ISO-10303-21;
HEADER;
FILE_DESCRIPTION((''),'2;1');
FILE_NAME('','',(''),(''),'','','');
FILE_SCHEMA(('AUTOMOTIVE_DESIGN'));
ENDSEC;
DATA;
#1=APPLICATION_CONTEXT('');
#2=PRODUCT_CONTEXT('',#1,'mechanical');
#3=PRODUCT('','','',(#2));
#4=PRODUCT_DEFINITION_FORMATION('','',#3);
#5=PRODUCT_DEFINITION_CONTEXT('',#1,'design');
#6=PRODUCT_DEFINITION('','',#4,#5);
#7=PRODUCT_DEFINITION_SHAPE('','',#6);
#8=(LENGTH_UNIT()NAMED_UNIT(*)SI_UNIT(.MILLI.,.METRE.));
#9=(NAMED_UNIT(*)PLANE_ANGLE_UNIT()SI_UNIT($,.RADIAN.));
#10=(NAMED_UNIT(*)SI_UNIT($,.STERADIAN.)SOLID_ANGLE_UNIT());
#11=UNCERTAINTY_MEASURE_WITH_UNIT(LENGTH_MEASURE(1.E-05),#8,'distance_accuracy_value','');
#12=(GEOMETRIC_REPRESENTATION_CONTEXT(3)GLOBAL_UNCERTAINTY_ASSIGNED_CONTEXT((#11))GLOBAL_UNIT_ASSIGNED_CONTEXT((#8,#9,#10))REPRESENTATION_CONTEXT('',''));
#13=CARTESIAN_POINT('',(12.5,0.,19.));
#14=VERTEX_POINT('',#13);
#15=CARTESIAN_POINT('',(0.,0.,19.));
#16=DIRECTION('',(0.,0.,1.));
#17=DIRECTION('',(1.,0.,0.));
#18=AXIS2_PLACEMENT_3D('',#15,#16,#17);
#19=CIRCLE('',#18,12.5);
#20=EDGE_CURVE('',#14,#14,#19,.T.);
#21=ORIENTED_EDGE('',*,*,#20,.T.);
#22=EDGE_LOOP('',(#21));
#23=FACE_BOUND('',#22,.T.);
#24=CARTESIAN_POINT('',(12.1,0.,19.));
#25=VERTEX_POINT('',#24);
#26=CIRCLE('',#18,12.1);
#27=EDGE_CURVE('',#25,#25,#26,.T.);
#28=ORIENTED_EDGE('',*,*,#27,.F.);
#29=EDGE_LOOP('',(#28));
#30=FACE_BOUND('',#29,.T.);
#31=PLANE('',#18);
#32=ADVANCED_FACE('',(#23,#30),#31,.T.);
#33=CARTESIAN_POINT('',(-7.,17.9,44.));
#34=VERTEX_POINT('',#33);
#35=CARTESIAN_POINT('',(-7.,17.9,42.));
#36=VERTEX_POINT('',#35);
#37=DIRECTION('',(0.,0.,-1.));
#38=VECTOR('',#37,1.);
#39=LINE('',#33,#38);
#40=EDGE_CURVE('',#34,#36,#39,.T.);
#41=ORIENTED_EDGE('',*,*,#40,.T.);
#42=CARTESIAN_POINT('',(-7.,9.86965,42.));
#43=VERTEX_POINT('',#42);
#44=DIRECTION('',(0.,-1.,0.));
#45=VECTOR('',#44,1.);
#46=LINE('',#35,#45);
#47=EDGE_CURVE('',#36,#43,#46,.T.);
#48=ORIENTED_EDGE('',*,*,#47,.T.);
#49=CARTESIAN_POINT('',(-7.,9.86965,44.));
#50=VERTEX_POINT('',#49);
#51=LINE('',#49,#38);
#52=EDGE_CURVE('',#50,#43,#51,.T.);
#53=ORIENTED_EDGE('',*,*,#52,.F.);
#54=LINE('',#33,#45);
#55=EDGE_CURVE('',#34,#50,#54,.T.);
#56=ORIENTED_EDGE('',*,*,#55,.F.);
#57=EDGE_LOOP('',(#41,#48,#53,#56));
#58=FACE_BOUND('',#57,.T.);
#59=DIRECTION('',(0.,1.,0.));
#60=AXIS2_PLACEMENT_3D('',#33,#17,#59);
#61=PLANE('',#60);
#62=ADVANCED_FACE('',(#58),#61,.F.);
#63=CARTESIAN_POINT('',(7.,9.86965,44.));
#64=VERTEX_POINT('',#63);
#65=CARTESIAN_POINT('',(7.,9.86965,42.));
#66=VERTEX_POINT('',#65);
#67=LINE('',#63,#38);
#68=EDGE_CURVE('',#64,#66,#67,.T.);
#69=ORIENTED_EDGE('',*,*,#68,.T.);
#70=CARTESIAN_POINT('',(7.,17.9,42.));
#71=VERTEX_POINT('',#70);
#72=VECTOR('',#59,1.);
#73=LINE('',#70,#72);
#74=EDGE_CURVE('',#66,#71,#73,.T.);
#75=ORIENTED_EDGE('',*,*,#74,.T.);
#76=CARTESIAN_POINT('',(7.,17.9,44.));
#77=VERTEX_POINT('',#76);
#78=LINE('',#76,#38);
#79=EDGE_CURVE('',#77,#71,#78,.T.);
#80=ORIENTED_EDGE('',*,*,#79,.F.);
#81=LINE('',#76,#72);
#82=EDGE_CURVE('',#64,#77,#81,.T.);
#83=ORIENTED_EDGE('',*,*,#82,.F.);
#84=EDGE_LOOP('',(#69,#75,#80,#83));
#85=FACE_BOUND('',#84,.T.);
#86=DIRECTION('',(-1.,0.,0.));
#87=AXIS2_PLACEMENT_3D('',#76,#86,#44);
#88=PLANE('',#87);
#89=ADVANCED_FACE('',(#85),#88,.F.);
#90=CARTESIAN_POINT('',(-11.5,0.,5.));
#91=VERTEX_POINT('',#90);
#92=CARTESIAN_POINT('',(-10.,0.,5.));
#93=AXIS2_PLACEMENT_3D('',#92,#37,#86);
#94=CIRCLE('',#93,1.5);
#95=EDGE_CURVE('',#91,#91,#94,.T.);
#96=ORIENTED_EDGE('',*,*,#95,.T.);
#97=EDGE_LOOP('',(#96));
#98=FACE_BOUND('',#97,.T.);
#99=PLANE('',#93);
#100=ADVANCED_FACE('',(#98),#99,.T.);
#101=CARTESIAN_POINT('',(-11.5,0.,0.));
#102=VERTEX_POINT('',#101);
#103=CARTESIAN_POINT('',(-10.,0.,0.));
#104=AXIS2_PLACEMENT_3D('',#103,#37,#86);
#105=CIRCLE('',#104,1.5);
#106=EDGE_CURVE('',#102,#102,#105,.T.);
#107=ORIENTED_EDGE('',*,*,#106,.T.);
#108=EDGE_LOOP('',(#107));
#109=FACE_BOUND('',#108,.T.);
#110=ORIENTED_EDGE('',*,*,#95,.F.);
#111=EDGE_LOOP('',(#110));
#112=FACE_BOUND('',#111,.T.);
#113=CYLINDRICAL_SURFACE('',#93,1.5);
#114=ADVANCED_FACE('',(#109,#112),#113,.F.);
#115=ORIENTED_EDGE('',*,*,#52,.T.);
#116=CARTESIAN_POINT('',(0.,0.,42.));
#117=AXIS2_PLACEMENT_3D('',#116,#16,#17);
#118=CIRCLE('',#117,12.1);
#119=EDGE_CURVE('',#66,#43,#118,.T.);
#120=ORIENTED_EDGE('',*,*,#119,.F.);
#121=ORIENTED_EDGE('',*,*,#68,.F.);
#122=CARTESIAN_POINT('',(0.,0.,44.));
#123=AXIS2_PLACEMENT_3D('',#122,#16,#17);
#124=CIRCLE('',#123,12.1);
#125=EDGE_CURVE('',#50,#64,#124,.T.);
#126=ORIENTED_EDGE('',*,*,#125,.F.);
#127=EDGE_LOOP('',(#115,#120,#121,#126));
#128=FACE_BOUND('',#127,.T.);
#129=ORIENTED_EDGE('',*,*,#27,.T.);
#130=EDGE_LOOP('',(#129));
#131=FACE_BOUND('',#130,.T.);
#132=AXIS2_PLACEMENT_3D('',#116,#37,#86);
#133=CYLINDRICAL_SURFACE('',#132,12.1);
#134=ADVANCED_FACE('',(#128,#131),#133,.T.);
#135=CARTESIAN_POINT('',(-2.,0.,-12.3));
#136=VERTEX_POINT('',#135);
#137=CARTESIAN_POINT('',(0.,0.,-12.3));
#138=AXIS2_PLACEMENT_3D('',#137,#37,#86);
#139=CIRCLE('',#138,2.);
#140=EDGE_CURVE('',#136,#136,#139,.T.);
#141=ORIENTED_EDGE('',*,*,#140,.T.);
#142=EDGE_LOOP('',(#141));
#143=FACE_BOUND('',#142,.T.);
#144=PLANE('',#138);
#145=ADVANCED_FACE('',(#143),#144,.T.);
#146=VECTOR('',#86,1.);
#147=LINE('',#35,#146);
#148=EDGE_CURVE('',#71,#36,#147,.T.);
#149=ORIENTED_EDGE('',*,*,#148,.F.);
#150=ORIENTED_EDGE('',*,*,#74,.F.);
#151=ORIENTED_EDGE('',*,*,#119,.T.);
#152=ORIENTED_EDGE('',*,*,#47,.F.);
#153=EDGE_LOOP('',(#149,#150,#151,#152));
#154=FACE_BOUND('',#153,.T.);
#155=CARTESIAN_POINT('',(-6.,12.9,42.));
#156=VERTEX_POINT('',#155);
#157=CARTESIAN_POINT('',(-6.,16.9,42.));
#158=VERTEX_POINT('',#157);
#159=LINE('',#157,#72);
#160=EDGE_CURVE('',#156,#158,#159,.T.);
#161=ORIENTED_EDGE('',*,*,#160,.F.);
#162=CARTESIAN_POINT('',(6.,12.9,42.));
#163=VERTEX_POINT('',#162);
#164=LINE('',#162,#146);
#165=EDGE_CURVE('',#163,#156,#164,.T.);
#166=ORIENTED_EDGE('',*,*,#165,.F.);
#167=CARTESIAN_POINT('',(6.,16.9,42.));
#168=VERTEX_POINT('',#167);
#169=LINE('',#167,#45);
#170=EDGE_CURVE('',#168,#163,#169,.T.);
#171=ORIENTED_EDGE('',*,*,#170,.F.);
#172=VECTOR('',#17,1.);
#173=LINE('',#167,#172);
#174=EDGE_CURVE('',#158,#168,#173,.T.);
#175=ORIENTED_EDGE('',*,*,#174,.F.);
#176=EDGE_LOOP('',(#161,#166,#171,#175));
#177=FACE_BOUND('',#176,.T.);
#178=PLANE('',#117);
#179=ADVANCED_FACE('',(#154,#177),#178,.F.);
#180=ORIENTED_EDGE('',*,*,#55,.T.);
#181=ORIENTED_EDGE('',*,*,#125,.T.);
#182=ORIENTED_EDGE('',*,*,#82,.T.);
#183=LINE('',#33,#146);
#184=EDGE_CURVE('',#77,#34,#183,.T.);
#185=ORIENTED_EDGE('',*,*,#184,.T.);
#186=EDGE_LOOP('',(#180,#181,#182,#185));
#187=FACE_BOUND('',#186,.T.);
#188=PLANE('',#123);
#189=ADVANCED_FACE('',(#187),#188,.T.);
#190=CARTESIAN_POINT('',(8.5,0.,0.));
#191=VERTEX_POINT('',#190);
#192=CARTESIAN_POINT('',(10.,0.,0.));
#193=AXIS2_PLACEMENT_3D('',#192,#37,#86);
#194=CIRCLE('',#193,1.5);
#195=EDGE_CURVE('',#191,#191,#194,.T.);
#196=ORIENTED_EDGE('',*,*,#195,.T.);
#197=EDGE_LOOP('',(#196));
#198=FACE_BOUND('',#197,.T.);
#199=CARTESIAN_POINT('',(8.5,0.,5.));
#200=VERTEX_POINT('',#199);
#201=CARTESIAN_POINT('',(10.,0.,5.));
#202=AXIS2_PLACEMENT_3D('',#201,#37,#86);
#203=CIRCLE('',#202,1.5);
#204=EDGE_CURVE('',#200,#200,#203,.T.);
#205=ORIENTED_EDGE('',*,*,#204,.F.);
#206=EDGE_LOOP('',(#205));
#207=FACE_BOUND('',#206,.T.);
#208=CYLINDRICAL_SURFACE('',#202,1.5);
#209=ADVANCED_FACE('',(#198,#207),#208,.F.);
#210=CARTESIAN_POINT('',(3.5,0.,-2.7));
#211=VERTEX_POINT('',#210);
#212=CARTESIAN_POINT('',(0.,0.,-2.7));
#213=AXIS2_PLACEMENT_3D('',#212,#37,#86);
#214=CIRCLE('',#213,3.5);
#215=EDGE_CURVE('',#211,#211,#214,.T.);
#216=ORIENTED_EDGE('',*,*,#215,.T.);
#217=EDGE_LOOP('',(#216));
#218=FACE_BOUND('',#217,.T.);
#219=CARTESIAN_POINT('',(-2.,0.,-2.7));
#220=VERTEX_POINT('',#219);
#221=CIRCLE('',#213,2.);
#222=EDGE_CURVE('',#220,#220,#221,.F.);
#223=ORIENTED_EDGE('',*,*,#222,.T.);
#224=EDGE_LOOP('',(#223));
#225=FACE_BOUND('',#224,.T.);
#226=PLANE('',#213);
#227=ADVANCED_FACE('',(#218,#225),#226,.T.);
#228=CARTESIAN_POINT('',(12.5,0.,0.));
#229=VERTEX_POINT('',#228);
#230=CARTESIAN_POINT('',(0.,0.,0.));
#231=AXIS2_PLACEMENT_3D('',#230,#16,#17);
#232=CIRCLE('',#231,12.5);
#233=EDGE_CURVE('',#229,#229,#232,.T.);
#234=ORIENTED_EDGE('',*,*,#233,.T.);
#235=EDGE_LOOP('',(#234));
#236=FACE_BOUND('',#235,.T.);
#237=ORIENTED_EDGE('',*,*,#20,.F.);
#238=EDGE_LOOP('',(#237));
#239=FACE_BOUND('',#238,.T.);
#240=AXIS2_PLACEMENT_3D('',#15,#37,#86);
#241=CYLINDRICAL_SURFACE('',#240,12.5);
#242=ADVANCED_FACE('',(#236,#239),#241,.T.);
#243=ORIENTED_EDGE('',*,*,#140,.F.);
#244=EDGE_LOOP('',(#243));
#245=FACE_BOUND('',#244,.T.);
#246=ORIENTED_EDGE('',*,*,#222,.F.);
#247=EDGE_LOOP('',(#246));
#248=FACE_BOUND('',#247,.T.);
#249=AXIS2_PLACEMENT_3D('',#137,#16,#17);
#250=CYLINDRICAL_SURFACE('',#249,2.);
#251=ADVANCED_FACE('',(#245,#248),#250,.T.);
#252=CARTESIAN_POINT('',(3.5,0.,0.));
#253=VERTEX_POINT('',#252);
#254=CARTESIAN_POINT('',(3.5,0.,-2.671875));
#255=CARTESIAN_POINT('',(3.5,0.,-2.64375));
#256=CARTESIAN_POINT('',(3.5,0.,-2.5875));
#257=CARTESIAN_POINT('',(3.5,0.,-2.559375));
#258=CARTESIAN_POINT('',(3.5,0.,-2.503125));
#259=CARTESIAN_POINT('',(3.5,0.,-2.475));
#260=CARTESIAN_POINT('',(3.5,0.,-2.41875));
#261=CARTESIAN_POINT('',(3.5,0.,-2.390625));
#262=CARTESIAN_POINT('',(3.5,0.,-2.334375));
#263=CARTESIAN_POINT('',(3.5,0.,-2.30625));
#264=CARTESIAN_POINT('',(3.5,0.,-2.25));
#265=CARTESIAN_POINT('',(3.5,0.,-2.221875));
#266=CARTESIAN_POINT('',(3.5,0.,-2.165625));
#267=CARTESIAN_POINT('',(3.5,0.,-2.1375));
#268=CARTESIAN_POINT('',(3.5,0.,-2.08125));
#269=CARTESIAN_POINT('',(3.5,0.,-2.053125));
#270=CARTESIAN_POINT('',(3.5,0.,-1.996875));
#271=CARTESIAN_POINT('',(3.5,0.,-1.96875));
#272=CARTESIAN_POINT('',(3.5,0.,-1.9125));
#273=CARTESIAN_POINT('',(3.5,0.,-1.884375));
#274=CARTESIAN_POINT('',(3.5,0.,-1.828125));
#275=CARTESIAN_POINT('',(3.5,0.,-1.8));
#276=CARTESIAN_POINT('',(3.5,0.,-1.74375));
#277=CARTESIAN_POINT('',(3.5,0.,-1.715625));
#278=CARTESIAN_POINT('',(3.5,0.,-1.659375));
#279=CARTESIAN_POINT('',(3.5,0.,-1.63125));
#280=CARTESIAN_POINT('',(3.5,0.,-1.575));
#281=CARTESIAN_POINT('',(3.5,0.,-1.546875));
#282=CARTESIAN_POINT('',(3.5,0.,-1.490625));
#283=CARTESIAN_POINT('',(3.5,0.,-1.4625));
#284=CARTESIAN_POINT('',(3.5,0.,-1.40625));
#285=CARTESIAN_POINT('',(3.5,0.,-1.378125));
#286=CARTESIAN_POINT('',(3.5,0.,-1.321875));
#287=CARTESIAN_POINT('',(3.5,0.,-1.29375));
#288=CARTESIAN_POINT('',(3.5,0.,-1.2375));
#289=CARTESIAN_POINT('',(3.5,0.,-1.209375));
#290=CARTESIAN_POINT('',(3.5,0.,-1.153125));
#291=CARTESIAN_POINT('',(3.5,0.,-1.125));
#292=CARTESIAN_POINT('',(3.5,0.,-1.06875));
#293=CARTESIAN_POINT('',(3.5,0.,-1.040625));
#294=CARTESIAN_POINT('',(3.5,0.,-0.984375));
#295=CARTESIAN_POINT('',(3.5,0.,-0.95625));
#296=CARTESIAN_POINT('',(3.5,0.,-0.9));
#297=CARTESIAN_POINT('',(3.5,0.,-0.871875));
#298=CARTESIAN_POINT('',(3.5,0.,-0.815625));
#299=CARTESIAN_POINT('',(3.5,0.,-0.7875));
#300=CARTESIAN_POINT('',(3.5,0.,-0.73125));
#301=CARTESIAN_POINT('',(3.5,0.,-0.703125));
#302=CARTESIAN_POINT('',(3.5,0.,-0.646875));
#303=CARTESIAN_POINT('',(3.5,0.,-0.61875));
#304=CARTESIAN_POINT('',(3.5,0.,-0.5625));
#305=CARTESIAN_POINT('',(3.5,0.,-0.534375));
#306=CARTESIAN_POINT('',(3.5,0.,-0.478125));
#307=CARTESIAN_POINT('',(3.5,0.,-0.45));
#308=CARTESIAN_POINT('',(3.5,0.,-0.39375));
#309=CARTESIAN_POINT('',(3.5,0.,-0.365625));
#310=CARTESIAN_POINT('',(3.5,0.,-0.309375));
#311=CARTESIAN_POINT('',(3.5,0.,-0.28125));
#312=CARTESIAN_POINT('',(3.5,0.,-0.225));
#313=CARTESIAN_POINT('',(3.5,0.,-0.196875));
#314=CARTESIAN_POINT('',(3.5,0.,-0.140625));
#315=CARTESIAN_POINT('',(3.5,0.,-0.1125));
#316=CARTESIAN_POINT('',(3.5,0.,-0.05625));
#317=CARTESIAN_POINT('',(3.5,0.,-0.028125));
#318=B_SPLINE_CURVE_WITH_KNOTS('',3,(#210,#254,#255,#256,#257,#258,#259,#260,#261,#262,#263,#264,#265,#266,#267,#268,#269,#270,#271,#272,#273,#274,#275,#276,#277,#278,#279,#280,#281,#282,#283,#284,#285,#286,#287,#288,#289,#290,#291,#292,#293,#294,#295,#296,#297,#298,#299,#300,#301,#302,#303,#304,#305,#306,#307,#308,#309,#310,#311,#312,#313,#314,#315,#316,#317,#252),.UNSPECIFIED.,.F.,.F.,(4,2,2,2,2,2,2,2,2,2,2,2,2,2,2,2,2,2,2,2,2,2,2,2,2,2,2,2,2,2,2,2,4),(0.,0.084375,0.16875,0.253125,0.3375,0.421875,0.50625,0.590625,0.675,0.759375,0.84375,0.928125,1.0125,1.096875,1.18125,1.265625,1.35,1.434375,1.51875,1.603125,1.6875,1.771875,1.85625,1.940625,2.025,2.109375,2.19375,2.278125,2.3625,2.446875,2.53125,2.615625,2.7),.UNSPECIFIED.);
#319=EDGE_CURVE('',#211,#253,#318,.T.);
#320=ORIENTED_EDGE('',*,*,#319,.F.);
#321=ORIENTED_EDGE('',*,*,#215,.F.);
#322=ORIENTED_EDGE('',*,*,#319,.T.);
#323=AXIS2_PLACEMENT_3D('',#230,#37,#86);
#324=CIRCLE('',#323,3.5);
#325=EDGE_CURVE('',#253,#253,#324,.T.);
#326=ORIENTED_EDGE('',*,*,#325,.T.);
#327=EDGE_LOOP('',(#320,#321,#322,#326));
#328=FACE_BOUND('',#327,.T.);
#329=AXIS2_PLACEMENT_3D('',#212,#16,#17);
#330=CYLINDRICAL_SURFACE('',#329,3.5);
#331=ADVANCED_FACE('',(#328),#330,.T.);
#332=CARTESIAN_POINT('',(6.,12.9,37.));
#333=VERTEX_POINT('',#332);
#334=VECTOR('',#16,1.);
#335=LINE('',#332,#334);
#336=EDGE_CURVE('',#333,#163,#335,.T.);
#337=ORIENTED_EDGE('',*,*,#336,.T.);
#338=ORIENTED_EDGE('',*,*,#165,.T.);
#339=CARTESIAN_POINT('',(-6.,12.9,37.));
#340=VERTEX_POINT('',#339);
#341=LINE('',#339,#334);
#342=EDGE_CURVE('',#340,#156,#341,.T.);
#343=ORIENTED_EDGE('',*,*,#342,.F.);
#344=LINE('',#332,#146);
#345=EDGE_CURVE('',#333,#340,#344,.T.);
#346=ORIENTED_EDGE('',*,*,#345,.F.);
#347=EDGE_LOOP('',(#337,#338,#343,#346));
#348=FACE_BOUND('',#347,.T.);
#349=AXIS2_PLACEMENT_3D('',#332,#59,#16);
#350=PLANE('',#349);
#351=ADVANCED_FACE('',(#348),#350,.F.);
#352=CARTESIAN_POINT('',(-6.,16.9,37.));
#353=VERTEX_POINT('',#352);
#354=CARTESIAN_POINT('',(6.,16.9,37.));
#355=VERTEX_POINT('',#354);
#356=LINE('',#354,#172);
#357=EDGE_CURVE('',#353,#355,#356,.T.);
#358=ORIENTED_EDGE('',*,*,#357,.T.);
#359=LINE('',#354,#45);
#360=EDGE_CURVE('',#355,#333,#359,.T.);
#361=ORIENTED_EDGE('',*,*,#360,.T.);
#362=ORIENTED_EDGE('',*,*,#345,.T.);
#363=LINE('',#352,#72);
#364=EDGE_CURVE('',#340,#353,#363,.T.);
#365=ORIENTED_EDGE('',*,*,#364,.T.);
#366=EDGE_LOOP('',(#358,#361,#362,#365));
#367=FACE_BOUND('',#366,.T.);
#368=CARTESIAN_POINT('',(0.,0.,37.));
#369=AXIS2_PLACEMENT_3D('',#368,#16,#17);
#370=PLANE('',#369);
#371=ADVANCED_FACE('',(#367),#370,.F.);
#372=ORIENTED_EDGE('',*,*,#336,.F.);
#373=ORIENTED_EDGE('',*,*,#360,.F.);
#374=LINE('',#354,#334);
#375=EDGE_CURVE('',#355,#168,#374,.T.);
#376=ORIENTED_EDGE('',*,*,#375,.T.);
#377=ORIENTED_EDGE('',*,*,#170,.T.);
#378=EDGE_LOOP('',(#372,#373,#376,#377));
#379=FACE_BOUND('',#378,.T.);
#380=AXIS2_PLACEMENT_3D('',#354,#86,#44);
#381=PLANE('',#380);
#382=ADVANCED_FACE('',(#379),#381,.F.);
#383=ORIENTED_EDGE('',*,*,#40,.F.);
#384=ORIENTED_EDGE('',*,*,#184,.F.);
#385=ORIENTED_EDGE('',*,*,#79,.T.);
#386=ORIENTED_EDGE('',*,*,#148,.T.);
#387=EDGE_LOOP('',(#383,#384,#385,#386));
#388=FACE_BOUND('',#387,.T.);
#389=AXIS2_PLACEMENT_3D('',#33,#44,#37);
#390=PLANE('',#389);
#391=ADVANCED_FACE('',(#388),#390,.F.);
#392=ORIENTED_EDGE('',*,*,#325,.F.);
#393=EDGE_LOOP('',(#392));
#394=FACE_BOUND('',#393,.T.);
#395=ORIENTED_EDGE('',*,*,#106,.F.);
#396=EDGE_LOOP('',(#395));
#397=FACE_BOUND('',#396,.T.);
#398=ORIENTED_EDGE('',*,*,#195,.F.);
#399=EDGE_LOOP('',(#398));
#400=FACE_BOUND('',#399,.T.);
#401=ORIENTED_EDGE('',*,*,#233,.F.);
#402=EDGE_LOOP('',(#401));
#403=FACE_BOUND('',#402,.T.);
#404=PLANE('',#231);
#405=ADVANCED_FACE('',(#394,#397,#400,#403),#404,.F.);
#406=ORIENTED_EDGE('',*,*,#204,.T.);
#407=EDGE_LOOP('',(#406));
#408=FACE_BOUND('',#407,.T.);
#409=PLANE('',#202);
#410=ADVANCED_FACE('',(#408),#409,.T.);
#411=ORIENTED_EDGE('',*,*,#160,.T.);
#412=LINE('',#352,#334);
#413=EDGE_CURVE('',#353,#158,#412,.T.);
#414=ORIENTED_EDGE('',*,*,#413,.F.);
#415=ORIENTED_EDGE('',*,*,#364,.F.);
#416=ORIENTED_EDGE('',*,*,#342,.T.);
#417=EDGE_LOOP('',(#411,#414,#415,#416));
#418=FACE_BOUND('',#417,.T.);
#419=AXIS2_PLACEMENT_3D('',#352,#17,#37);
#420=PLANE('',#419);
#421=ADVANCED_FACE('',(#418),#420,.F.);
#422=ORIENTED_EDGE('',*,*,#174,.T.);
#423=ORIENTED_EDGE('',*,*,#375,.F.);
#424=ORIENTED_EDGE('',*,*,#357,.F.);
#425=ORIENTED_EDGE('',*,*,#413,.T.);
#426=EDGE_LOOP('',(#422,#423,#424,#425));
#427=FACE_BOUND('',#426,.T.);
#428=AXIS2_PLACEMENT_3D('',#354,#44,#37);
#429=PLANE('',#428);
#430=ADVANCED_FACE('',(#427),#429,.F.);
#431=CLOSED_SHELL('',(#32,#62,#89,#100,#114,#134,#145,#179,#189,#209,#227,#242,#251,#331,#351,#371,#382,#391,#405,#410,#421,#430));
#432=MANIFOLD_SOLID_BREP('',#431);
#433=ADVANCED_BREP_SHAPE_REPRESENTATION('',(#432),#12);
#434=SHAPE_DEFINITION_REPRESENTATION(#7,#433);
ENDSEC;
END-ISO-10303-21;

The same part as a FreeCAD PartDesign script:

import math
import FreeCAD as App
import Part
import Sketcher
from FreeCAD import Vector
Q = App.Units.Quantity

doc = App.newDocument("Part")
body = doc.addObject("PartDesign::Body", "Body")

# Sketch on XY plane
sketch1 = body.newObject("Sketcher::SketchObject", "Sketch")
sketch1.AttachmentSupport = (doc.getObject("XY_Plane"), [""])
sketch1.MapMode = "FlatFace"
sketch1.addGeometry(Part.Circle(Vector(0, 0, 0), Vector(0, 0, 1), 12.5), False)
sketch1.addConstraint([
    Sketcher.Constraint("Coincident", 0, 3, -1, 1),
    Sketcher.Constraint("Diameter", 0, Q("25 mm")),
])
pad1 = body.newObject("PartDesign::Pad", "Pad")
pad1.Profile = sketch1
pad1.Length = 19

# Sketch on XY plane
sketch2 = body.newObject("Sketcher::SketchObject", "Sketch001")
sketch2.AttachmentSupport = (doc.getObject("XY_Plane"), [""])
sketch2.MapMode = "FlatFace"
sketch2.AttachmentOffset = App.Placement(Vector(0, 0, 19), App.Rotation())
sketch2.addGeometry(Part.Circle(Vector(0, 0, 0), Vector(0, 0, 1), 12.1), False)
sketch2.addConstraint([
    Sketcher.Constraint("Coincident", 0, 3, -1, 1),
    Sketcher.Constraint("Diameter", 0, Q("24.2 mm")),
])
pad2 = body.newObject("PartDesign::Pad", "Pad001")
pad2.Profile = sketch2
pad2.Length = 23

# Sketch on XY plane
sketch3 = body.newObject("Sketcher::SketchObject", "Sketch002")
sketch3.AttachmentSupport = (doc.getObject("XY_Plane"), [""])
sketch3.MapMode = "FlatFace"
sketch3.AttachmentOffset = App.Placement(Vector(0, 0, 42), App.Rotation())
sketch3.addGeometry([
    Part.LineSegment(Vector(7, 17.9, 0), Vector(-7, 17.9, 0)),
    Part.LineSegment(Vector(-7, 17.9, 0), Vector(-7, 9.86965, 0)),
    Part.ArcOfCircle(Part.Circle(Vector(0, 0, 0), Vector(0, 0, 1), 12.1), math.radians(125.34598), math.radians(414.65402)),
    Part.LineSegment(Vector(7, 9.86965, 0), Vector(7, 17.9, 0)),
], False)
sketch3.addConstraint([
    Sketcher.Constraint("Coincident", 0, 2, 1, 1),
    Sketcher.Constraint("Coincident", 1, 2, 2, 1),
    Sketcher.Constraint("Coincident", 2, 2, 3, 1),
    Sketcher.Constraint("Coincident", 3, 2, 0, 1),
    Sketcher.Constraint("Horizontal", 0),
    Sketcher.Constraint("Vertical", 1),
    Sketcher.Constraint("Vertical", 3),
    Sketcher.Constraint("Coincident", 2, 3, -1, 1),
    Sketcher.Constraint("Horizontal", 1, 2, 2, 2),
    Sketcher.Constraint("Radius", 2, Q("12.1 mm")),
    Sketcher.Constraint("DistanceX", 0, 2, 0, 1, Q("14 mm")),
    Sketcher.Constraint("DistanceY", -1, 1, 0, 2, Q("17.9 mm")),
])
pad3 = body.newObject("PartDesign::Pad", "Pad002")
pad3.Profile = sketch3
pad3.Length = 2

# Sketch on XY plane
sketch4 = body.newObject("Sketcher::SketchObject", "Sketch003")
sketch4.AttachmentSupport = (doc.getObject("XY_Plane"), [""])
sketch4.MapMode = "FlatFace"
sketch4.AttachmentOffset = App.Placement(Vector(0, 0, 42), App.Rotation())
sketch4.addGeometry([
    Part.LineSegment(Vector(6, 16.9, 0), Vector(6, 12.9, 0)),
    Part.LineSegment(Vector(6, 12.9, 0), Vector(-6, 12.9, 0)),
    Part.LineSegment(Vector(-6, 12.9, 0), Vector(-6, 16.9, 0)),
    Part.LineSegment(Vector(-6, 16.9, 0), Vector(6, 16.9, 0)),
], False)
sketch4.addConstraint([
    Sketcher.Constraint("Coincident", 0, 2, 1, 1),
    Sketcher.Constraint("Coincident", 1, 2, 2, 1),
    Sketcher.Constraint("Coincident", 2, 2, 3, 1),
    Sketcher.Constraint("Coincident", 3, 2, 0, 1),
    Sketcher.Constraint("Vertical", 0),
    Sketcher.Constraint("Horizontal", 1),
    Sketcher.Constraint("Vertical", 2),
    Sketcher.Constraint("Horizontal", 3),
    Sketcher.Constraint("DistanceX", 1, 2, 1, 1, Q("12 mm")),
    Sketcher.Constraint("DistanceY", 0, 2, 0, 1, Q("4 mm")),
    Sketcher.Constraint("DistanceX", -1, 1, 0, 2, Q("6 mm")),
    Sketcher.Constraint("DistanceY", -1, 1, 0, 2, Q("12.9 mm")),
])
pad4 = body.newObject("PartDesign::Pad", "Pad003")
pad4.Profile = sketch4
pad4.Length = 5
pad4.Reversed = True

# Sketch on XY plane
sketch5 = body.newObject("Sketcher::SketchObject", "Sketch004")
sketch5.AttachmentSupport = (doc.getObject("XY_Plane"), [""])
sketch5.MapMode = "FlatFace"
sketch5.addGeometry(Part.Circle(Vector(0, 0, 0), Vector(0, 0, 1), 3.5), False)
sketch5.addConstraint([
    Sketcher.Constraint("Coincident", 0, 3, -1, 1),
    Sketcher.Constraint("Diameter", 0, Q("7 mm")),
])
pad5 = body.newObject("PartDesign::Pad", "Pad004")
pad5.Profile = sketch5
pad5.Length = 2.7
pad5.Reversed = True

# Sketch on XY plane
sketch6 = body.newObject("Sketcher::SketchObject", "Sketch005")
sketch6.AttachmentSupport = (doc.getObject("XY_Plane"), [""])
sketch6.MapMode = "FlatFace"
sketch6.addGeometry(Part.Circle(Vector(0, 0, 0), Vector(0, 0, 1), 2), False)
sketch6.addConstraint([
    Sketcher.Constraint("Coincident", 0, 3, -1, 1),
    Sketcher.Constraint("Diameter", 0, Q("4 mm")),
])
pad6 = body.newObject("PartDesign::Pad", "Pad005")
pad6.Profile = sketch6
pad6.Length = 12.3
pad6.Reversed = True

# Sketch on XY plane
sketch7 = body.newObject("Sketcher::SketchObject", "Sketch006")
sketch7.AttachmentSupport = (doc.getObject("XY_Plane"), [""])
sketch7.MapMode = "FlatFace"
sketch7.addGeometry([
    Part.Circle(Vector(-10, 0, 0), Vector(0, 0, 1), 1.5),
    Part.Circle(Vector(10, 0, 0), Vector(0, 0, 1), 1.5),
], False)
sketch7.addConstraint([
    Sketcher.Constraint("Equal", 0, 1),
    Sketcher.Constraint("Symmetric", 0, 3, 1, 3, -1, 1),
    Sketcher.Constraint("PointOnObject", 0, 3, -1),
    Sketcher.Constraint("Diameter", 0, Q("3 mm")),
    Sketcher.Constraint("DistanceX", 0, 3, -1, 1, Q("10 mm")),
])
pocket1 = body.newObject("PartDesign::Pocket", "Pocket")
pocket1.Profile = sketch7
pocket1.Length = 5
pocket1.Reversed = True

doc.recompute()
